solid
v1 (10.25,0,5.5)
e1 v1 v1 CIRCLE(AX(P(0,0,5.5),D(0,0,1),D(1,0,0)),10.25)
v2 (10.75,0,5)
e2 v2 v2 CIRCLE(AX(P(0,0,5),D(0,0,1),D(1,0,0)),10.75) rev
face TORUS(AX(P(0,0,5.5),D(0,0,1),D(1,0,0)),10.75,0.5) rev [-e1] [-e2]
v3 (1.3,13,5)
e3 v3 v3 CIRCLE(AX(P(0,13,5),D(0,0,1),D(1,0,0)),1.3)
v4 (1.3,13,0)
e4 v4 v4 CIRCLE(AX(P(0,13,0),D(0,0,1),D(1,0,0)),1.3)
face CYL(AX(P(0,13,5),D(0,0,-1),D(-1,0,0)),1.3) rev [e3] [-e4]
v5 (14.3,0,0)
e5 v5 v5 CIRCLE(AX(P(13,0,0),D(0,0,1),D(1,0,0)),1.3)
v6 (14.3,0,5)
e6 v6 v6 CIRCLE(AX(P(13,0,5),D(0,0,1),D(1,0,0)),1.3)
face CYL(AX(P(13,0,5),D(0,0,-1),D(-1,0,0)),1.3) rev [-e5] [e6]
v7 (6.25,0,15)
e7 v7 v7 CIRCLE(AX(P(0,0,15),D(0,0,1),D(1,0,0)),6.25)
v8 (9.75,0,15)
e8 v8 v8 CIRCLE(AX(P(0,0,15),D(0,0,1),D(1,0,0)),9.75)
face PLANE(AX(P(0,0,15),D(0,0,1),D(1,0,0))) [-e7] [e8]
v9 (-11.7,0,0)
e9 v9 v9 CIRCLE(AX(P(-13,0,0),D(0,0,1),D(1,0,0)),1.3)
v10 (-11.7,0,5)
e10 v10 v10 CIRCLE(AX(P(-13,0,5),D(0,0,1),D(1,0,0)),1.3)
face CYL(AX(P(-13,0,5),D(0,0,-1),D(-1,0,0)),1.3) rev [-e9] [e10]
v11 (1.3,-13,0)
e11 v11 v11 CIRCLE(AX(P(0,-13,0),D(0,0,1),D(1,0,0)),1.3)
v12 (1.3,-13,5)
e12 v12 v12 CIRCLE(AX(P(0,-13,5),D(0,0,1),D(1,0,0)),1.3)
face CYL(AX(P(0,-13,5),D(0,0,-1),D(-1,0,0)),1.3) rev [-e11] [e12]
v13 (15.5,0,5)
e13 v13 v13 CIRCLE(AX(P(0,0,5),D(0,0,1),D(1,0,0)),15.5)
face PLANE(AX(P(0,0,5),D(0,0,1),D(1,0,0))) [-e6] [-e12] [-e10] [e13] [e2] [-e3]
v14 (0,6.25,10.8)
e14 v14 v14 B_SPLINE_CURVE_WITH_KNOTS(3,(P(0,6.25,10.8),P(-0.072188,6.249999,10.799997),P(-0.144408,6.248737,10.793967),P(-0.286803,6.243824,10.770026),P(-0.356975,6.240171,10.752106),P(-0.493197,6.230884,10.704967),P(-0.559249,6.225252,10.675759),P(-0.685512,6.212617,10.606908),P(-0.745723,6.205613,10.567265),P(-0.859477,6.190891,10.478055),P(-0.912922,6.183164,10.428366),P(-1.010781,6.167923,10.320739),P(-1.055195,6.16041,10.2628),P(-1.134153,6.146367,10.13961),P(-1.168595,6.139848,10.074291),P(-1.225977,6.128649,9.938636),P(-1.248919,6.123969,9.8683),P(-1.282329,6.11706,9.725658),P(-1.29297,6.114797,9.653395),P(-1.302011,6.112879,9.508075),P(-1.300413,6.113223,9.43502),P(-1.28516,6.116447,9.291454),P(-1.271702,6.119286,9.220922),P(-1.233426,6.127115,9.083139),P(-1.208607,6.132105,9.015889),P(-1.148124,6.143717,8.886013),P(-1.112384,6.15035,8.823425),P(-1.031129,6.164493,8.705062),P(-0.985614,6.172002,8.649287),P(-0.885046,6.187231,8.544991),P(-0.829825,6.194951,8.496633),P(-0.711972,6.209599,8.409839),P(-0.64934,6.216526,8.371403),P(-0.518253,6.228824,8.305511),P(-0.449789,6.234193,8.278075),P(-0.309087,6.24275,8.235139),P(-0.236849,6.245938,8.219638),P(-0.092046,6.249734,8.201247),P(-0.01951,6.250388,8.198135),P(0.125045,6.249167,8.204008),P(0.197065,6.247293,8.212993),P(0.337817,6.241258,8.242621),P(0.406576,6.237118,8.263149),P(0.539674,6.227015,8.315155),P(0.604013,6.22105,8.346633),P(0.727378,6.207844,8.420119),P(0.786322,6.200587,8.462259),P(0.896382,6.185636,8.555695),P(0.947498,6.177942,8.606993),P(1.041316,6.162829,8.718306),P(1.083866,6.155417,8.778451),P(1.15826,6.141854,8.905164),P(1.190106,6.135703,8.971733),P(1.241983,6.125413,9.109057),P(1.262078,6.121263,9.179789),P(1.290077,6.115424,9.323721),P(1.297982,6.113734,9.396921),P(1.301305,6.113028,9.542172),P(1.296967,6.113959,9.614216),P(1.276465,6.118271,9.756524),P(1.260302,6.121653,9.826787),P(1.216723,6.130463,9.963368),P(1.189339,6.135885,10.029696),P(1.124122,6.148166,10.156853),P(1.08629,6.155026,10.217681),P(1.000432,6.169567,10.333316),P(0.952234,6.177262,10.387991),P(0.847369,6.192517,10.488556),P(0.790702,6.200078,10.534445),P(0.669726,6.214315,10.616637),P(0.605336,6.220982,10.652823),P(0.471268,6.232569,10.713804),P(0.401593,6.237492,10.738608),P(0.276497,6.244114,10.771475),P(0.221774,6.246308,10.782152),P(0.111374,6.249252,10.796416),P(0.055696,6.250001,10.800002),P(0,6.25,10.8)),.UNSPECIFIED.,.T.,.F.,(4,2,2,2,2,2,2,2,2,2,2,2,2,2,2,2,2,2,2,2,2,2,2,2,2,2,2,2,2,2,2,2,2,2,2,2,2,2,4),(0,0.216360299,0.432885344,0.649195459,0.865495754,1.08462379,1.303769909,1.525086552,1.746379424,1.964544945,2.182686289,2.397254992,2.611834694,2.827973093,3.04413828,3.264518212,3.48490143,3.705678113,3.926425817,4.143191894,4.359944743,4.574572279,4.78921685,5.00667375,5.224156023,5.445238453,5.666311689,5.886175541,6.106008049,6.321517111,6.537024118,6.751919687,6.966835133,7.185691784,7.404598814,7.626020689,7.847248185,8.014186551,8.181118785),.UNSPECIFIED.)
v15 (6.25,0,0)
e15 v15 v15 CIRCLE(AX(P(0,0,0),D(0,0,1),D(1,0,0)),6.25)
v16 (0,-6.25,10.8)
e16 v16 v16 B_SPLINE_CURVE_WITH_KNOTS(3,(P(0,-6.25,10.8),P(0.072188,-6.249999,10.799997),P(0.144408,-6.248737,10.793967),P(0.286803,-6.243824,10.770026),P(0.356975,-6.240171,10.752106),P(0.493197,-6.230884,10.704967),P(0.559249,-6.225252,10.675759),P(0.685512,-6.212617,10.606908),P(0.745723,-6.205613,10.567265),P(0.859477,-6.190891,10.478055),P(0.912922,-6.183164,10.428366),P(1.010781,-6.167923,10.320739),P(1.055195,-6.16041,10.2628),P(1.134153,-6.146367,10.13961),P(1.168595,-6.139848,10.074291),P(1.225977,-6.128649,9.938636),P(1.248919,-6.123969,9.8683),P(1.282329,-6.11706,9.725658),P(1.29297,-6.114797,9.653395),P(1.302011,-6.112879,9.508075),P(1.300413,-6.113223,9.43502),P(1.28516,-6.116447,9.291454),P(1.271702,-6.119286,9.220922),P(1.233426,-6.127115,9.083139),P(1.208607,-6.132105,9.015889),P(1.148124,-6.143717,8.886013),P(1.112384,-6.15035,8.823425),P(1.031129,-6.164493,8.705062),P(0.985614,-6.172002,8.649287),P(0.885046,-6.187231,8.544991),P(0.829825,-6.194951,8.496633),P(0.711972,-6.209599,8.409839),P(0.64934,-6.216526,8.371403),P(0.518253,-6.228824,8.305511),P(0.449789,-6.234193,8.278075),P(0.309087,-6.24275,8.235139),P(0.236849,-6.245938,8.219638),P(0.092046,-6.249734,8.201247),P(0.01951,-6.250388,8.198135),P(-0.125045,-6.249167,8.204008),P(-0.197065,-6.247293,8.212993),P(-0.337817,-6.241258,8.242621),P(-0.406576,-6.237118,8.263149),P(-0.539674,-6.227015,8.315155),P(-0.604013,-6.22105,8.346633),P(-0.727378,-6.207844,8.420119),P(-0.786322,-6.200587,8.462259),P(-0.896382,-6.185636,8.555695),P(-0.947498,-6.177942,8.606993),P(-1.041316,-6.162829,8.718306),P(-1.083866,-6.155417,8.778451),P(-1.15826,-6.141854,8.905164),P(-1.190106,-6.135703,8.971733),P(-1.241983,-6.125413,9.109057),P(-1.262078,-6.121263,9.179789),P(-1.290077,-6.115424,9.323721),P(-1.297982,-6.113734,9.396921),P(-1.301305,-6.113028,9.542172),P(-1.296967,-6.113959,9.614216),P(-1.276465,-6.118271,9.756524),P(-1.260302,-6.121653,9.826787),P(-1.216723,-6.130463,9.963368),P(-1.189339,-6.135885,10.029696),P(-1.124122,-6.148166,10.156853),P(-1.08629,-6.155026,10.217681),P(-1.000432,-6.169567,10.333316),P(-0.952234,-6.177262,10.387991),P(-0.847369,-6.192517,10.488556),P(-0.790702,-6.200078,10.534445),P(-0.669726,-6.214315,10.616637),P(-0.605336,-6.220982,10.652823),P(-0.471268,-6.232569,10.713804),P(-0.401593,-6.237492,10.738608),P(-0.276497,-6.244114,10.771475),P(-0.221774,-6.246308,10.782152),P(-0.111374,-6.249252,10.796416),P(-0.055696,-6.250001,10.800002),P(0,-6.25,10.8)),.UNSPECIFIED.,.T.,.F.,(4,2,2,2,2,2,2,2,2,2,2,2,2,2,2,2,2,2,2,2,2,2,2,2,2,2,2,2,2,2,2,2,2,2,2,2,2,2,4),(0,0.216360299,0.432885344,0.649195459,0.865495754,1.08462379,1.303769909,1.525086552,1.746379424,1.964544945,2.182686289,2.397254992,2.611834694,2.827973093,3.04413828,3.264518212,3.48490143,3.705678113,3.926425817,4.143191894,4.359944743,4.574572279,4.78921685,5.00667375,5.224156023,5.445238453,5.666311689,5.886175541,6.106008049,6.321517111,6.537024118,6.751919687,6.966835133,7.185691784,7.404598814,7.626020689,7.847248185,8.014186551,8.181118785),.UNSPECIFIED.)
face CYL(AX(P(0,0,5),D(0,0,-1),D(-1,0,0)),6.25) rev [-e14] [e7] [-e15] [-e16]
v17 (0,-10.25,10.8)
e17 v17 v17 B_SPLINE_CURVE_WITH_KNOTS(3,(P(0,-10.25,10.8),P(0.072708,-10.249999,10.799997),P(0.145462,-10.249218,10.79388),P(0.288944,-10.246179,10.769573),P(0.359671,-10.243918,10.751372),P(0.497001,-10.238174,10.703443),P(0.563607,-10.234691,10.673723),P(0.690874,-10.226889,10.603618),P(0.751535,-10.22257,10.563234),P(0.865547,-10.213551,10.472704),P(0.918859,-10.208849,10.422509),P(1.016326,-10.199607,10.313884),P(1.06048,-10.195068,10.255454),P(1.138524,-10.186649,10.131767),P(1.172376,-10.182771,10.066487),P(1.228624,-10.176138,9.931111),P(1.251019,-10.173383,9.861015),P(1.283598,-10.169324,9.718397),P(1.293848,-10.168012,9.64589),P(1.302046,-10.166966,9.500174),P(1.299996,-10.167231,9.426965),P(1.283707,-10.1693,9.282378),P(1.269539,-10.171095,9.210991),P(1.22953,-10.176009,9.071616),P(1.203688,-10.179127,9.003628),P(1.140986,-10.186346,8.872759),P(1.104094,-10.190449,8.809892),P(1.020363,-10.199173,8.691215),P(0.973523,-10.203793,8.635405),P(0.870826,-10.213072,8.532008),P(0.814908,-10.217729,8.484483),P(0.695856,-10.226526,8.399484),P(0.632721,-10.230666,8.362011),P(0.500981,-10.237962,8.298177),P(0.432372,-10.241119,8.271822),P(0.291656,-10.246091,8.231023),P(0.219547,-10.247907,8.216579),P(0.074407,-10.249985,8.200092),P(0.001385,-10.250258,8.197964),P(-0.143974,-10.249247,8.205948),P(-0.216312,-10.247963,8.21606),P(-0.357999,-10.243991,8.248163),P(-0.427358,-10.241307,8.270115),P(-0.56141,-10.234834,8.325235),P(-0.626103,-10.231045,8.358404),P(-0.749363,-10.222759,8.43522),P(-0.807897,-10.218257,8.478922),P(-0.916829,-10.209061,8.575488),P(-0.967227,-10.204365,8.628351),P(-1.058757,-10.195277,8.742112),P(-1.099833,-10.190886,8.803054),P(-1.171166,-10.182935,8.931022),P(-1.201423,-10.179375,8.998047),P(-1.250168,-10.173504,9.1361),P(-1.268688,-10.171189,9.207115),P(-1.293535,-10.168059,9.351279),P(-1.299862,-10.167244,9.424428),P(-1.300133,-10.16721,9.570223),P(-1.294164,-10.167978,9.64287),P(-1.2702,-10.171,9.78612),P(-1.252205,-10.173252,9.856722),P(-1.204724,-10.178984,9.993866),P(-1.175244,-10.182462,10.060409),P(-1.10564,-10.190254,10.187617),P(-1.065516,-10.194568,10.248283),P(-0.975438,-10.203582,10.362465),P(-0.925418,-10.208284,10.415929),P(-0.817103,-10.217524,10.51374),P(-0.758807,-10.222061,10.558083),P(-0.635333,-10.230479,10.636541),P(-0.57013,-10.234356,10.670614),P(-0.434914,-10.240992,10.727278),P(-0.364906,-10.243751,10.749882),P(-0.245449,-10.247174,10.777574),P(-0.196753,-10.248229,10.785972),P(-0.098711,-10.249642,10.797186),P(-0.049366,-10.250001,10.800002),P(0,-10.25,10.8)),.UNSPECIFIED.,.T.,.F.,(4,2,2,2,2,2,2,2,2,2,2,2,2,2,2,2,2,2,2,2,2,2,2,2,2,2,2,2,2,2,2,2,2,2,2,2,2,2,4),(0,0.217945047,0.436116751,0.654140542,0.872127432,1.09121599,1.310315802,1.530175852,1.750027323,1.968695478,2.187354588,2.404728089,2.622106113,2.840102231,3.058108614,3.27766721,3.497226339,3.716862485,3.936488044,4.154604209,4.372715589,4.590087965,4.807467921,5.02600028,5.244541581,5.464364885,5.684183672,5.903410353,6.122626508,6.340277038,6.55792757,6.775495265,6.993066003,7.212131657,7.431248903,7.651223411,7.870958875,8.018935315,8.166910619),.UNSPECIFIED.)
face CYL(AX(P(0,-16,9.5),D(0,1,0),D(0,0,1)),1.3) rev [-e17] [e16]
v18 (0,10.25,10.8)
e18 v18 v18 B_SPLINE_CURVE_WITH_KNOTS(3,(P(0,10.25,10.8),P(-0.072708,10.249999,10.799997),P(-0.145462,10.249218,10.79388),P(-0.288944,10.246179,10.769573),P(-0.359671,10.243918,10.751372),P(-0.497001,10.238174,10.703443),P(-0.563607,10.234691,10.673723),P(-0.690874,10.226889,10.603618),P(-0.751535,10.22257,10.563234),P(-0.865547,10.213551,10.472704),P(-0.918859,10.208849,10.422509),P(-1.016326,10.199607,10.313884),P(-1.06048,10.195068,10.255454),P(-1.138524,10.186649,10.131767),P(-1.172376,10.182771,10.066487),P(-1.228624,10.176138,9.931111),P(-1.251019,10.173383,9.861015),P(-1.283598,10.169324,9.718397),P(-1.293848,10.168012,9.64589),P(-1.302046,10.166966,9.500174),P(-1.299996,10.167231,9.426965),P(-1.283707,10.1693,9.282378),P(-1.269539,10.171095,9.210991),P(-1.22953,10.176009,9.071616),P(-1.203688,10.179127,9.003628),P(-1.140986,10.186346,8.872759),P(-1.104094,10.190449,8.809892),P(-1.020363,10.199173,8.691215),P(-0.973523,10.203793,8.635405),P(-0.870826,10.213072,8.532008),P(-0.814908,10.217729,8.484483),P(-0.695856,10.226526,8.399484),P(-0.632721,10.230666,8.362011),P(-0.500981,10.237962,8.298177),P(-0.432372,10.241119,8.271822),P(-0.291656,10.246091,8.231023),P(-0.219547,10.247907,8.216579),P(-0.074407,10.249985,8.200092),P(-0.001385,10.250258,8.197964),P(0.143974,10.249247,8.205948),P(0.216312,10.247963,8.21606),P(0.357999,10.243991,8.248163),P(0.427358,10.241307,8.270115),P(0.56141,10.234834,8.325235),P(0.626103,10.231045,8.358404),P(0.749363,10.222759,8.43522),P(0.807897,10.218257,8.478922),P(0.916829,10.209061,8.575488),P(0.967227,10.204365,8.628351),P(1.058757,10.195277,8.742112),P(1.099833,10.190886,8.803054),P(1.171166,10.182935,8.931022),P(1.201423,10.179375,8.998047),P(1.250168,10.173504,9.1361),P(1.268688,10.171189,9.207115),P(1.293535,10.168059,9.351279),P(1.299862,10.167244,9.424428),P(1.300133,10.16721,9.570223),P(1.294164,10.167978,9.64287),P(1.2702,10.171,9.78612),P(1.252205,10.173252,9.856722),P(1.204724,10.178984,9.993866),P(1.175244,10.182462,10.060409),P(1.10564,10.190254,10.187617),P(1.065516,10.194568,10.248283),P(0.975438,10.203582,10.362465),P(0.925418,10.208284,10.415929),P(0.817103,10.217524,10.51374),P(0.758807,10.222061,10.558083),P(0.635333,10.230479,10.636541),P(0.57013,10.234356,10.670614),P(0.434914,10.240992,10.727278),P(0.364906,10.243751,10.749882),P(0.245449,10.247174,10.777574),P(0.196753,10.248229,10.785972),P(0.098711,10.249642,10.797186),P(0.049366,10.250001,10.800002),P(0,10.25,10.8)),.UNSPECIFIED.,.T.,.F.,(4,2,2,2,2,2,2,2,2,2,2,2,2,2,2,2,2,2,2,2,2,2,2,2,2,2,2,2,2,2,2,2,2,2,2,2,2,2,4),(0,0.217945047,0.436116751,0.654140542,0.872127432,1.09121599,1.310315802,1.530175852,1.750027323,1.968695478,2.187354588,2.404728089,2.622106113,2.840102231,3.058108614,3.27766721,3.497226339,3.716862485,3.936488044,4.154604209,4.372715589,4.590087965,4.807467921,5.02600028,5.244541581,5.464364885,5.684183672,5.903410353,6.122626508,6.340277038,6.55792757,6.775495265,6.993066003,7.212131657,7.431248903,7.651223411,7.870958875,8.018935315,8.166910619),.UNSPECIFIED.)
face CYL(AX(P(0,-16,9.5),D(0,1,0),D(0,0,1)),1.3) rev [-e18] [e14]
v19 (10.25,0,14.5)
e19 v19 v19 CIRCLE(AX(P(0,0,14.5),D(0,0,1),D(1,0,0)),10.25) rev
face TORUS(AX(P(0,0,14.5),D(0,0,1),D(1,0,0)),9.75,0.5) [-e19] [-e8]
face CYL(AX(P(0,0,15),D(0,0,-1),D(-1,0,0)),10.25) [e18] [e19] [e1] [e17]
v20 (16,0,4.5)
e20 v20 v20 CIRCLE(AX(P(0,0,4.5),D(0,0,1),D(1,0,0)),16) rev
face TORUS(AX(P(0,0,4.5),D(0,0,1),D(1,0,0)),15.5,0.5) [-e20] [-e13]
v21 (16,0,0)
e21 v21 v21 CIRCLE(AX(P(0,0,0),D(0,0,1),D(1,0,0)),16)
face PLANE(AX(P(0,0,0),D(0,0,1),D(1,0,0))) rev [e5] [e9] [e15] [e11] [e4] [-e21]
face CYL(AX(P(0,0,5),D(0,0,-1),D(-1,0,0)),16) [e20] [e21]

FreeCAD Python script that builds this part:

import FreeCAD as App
import Part
import Sketcher
from FreeCAD import Vector


def edges_at(feature, points):
    """Names of the edges that pass closest to the given points."""
    edges = feature.Shape.Edges
    near = lambda p: min(range(len(edges)), key=lambda i: edges[i].distToShape(Part.Vertex(*p))[0])
    return sorted({f"Edge{near(p) + 1}" for p in points})

doc = App.newDocument("Part")
body = doc.addObject("PartDesign::Body", "Body")

sketch1 = body.newObject("Sketcher::SketchObject", "Sketch")
sketch1.AttachmentSupport = (doc.getObject("XY_Plane"), [""])
sketch1.MapMode = "FlatFace"
sketch1.addGeometry(Part.Circle(Vector(0, 0, 0), Vector(0, 0, 1), 16), False)
sketch1.addGeometry(Part.Circle(Vector(0, -13, 0), Vector(0, 0, 1), 1.3), False)
sketch1.addGeometry(Part.Circle(Vector(-13, 0, 0), Vector(0, 0, 1), 1.3), False)
sketch1.addGeometry(Part.Circle(Vector(0, 0, 0), Vector(0, 0, 1), 6.2), False)
sketch1.addGeometry(Part.Circle(Vector(13, 0, 0), Vector(0, 0, 1), 1.3), False)
sketch1.addGeometry(Part.Circle(Vector(0, 13, 0), Vector(0, 0, 1), 1.3), False)
sketch1.addConstraint(Sketcher.Constraint("Coincident", 0, 3, -1, 1))
sketch1.addConstraint(Sketcher.Constraint("Coincident", 3, 3, -1, 1))
sketch1.addConstraint(Sketcher.Constraint("Equal", 1, 2))
sketch1.addConstraint(Sketcher.Constraint("Equal", 2, 4))
sketch1.addConstraint(Sketcher.Constraint("Equal", 4, 5))
sketch1.addConstraint(Sketcher.Constraint("Symmetric", 2, 3, 4, 3, -1, 1))
sketch1.addConstraint(Sketcher.Constraint("Symmetric", 1, 3, 5, 3, -1, 1))
sketch1.addConstraint(Sketcher.Constraint("PointOnObject", 1, 3, -2))
sketch1.addConstraint(Sketcher.Constraint("PointOnObject", 2, 3, -1))
sketch1.addConstraint(Sketcher.Constraint("Diameter", 0, 32.0))
sketch1.addConstraint(Sketcher.Constraint("Diameter", 1, 2.6))
sketch1.addConstraint(Sketcher.Constraint("Diameter", 3, 12.5))
sketch1.addConstraint(Sketcher.Constraint("DistanceY", 1, 3, -1, 1, 13.0))
sketch1.addConstraint(Sketcher.Constraint("DistanceX", 2, 3, -1, 1, 13.0))
pad1 = body.newObject("PartDesign::Pad", "Pad")
pad1.Profile = sketch1
pad1.Length = 5

sketch2 = body.newObject("Sketcher::SketchObject", "Sketch001")
sketch2.AttachmentSupport = (doc.getObject("XY_Plane"), [""])
sketch2.MapMode = "FlatFace"
sketch2.addGeometry(Part.Circle(Vector(0, 0, 0), Vector(0, 0, 1), 10), False)
sketch2.addGeometry(Part.Circle(Vector(0, 0, 0), Vector(0, 0, 1), 6), False)
sketch2.addConstraint(Sketcher.Constraint("Coincident", 0, 3, -1, 1))
sketch2.addConstraint(Sketcher.Constraint("Coincident", 1, 3, -1, 1))
sketch2.addConstraint(Sketcher.Constraint("Diameter", 0, 20.5))
sketch2.addConstraint(Sketcher.Constraint("Diameter", 1, 12.5))
pad2 = body.newObject("PartDesign::Pad", "Pad001")
pad2.Profile = sketch2
pad2.Length = 15

sketch3 = body.newObject("Sketcher::SketchObject", "Sketch002")
sketch3.AttachmentSupport = (doc.getObject("XZ_Plane"), [""])
sketch3.MapMode = "FlatFace"
sketch3.addGeometry(Part.Circle(Vector(0, 9.5, 0), Vector(0, 0, 1), 1.3), False)
sketch3.addConstraint(Sketcher.Constraint("PointOnObject", 0, 3, -2))
sketch3.addConstraint(Sketcher.Constraint("Diameter", 0, 2.6))
sketch3.addConstraint(Sketcher.Constraint("DistanceY", -1, 1, 0, 3, 9.5))
pocket1 = body.newObject("PartDesign::Pocket", "Pocket")
pocket1.Profile = sketch3
pocket1.Type = "ThroughAll"
pocket1.Midplane = True
doc.recompute()

fillet = body.newObject("PartDesign::Fillet", "Fillet")
fillet.Base = (pocket1, edges_at(pocket1, [(-10.25, 0, 5), (-10.25, 0, 15), (-16, 0, 5)]))
fillet.Radius = 0.5

doc.recompute()
